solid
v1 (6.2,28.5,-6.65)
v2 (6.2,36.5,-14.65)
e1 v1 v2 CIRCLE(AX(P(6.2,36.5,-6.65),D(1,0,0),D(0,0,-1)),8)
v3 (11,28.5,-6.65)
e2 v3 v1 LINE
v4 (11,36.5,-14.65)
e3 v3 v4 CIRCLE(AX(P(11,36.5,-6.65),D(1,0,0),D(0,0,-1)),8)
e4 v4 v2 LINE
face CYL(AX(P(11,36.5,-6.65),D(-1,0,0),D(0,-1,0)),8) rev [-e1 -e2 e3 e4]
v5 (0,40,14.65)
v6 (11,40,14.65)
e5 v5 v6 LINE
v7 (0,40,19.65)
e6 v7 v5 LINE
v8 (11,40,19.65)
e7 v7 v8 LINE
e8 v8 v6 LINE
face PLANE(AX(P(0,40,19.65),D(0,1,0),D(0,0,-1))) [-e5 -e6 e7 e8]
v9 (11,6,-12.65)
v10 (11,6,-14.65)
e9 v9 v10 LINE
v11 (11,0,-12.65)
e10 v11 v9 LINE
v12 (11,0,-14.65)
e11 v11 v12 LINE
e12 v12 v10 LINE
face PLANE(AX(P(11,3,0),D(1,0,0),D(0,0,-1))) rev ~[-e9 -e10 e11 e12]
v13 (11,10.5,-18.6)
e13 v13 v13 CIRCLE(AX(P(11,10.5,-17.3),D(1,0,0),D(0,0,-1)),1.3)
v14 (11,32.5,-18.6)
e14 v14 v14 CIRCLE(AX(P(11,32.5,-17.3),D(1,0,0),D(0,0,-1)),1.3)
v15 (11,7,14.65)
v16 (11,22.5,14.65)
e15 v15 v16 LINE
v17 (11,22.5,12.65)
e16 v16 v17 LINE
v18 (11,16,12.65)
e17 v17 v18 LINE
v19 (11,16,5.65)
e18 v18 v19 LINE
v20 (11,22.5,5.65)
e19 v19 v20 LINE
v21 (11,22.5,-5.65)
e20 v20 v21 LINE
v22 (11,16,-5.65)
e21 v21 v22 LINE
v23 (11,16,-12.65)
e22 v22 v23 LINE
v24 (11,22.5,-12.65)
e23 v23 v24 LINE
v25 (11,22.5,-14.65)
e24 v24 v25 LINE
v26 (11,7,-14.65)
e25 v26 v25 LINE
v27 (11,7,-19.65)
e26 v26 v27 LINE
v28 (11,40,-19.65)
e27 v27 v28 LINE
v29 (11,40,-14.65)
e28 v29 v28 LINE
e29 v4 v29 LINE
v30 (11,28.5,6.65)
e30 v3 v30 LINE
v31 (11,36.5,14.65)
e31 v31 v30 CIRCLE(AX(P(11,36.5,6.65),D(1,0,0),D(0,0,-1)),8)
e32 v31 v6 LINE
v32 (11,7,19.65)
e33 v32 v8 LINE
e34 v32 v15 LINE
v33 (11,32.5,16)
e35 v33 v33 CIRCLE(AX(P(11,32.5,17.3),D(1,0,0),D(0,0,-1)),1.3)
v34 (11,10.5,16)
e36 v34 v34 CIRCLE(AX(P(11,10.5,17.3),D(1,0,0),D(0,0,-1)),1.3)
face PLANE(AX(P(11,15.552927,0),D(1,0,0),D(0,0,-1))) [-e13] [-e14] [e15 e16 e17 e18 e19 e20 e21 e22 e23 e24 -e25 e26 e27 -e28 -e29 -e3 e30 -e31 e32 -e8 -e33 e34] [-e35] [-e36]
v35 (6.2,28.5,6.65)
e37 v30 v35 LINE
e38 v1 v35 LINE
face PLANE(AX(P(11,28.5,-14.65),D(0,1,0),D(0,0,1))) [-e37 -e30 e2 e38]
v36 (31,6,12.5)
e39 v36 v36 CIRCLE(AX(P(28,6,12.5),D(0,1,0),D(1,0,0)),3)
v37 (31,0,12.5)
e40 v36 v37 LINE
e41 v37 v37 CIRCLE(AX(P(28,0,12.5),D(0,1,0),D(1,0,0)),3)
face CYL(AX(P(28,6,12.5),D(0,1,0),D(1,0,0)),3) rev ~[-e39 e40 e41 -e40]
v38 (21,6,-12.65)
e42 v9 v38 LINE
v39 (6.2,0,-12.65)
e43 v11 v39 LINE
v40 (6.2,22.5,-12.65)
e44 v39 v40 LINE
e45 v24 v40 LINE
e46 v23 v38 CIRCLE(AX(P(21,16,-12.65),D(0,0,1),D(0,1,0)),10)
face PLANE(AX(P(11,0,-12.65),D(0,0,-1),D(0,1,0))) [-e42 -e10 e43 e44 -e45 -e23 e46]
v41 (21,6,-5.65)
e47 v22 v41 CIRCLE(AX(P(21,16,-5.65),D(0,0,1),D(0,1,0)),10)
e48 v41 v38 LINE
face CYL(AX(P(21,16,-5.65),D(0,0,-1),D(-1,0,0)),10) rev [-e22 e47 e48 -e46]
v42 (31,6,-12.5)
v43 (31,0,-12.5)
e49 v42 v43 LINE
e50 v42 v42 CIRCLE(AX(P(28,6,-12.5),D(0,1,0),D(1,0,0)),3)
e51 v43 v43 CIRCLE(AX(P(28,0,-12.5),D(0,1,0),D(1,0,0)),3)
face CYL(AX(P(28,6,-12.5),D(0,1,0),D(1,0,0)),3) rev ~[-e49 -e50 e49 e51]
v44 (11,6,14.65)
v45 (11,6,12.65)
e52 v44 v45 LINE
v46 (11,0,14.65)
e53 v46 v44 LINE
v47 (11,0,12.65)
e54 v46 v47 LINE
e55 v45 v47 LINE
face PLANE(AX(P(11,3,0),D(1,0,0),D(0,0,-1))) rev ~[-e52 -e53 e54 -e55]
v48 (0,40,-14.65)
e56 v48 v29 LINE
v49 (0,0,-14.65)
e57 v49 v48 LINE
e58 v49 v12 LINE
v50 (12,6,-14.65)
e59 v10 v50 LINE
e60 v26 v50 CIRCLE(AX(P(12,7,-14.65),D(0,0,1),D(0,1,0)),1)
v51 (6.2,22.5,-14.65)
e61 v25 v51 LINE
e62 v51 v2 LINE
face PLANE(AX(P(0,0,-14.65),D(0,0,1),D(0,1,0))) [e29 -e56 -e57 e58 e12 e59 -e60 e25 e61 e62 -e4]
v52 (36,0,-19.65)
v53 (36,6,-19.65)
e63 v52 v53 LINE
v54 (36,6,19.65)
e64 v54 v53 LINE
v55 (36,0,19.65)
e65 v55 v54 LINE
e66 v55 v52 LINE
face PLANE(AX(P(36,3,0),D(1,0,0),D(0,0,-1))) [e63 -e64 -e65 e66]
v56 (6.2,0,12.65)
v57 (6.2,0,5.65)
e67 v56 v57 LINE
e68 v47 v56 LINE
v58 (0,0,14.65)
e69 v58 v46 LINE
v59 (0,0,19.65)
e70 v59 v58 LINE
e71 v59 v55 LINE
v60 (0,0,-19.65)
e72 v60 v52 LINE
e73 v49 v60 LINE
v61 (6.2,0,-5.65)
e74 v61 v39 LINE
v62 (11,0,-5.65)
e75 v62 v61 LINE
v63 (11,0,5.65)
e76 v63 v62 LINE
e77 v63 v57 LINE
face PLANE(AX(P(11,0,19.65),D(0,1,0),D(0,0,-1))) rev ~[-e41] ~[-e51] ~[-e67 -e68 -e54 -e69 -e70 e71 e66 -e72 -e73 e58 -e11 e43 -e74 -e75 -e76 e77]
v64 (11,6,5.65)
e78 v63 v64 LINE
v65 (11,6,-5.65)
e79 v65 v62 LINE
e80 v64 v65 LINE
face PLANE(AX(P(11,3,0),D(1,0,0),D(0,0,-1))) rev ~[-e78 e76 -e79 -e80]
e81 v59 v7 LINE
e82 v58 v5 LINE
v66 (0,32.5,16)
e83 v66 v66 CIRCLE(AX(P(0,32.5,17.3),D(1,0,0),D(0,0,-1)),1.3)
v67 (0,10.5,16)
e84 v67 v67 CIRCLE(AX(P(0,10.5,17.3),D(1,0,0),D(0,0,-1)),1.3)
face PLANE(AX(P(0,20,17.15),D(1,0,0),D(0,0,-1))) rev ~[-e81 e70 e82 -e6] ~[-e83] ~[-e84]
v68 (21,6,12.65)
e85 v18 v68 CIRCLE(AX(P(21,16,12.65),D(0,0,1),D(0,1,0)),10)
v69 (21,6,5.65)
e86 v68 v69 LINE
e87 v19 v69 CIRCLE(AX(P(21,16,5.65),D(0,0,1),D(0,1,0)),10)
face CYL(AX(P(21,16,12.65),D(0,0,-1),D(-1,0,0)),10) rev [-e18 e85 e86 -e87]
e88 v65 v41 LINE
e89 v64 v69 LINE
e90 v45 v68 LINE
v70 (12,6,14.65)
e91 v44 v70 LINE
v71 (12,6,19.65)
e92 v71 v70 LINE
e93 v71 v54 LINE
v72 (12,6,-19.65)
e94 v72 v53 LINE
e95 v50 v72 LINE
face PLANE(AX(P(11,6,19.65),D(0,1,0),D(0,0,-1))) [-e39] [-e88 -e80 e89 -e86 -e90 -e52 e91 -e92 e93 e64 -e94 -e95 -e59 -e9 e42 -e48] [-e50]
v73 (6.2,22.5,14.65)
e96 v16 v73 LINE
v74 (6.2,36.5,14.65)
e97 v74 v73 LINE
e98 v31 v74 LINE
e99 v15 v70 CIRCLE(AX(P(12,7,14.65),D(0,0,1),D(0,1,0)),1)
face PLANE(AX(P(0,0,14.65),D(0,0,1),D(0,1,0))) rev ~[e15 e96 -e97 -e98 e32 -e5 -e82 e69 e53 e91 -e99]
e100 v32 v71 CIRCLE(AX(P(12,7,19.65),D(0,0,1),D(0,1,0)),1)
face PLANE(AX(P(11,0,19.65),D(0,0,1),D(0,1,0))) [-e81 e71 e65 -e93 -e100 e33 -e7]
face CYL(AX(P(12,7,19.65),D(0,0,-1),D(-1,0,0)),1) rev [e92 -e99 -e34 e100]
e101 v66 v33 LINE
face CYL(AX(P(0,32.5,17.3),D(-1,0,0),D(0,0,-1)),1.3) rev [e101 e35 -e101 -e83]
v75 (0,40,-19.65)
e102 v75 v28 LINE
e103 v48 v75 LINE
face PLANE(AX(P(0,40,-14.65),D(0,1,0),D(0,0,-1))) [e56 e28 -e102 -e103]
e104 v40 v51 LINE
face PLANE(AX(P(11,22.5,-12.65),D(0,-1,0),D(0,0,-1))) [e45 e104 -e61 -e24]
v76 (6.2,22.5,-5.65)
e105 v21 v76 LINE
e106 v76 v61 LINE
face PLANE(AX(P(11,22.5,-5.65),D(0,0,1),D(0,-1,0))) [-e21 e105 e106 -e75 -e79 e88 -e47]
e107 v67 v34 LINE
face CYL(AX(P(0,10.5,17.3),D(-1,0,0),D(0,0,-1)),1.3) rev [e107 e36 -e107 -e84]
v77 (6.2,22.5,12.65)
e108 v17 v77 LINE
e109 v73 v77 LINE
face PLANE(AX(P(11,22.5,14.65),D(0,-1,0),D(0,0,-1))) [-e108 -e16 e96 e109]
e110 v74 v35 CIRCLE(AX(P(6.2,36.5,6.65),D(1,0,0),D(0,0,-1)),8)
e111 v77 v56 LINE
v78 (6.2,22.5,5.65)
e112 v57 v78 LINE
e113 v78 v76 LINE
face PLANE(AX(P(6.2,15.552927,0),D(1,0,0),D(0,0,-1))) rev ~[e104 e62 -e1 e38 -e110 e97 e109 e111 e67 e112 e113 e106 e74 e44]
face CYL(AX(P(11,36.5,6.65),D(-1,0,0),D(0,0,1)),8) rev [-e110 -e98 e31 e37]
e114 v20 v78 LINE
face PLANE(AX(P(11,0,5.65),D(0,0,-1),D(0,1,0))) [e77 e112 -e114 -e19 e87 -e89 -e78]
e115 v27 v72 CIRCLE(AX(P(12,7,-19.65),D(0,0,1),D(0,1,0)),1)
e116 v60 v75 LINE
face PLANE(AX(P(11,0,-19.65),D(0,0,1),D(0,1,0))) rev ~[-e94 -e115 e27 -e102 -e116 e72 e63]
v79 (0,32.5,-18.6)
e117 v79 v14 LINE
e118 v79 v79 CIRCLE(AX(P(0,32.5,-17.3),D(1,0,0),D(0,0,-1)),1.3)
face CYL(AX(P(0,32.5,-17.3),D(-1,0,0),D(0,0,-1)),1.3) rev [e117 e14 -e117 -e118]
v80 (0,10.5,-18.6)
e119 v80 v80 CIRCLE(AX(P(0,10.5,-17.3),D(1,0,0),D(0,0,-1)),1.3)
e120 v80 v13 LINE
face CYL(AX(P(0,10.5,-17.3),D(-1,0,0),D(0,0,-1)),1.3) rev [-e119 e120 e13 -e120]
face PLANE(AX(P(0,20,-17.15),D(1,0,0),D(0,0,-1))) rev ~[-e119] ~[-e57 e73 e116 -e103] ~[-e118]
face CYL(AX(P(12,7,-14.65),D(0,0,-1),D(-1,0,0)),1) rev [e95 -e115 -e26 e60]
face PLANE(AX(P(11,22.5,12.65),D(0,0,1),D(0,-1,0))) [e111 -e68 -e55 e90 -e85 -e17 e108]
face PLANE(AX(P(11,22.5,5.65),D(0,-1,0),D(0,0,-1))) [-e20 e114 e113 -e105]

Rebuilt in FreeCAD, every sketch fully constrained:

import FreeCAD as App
import Part
import Sketcher
Q = App.Units.Quantity


def edges_at(feature, points):
    """Names of the edges that pass closest to the given points."""
    edges = feature.Shape.Edges
    near = lambda p: min(range(len(edges)), key=lambda i: edges[i].distToShape(Part.Vertex(*p))[0])
    return sorted({f"Edge{near(p) + 1}" for p in points})

doc = App.newDocument("Part")
body = doc.addObject("PartDesign::Body", "Body")

# Sketch on YZ plane
sketch1 = body.newObject("Sketcher::SketchObject", "Sketch")
sketch1.AttachmentSupport = (doc.getObject("YZ_Plane"), [""])
sketch1.MapMode = "FlatFace"
sketch1.addGeometry([
    Part.LineSegment(App.Vector(40, 19.6, 0), App.Vector(0, 19.6, 0)),  # 0
    Part.LineSegment(App.Vector(0, 19.6, 0), App.Vector(0, 14.7, 0)),  # 1
    Part.LineSegment(App.Vector(0, 14.7, 0), App.Vector(40, 14.7, 0)),  # 2
    Part.LineSegment(App.Vector(40, 14.7, 0), App.Vector(40, 19.6, 0)),  # 3
    Part.Circle(App.Vector(10.5, 17.3, 0), App.Vector(0, 0, 1), 1.3),  # 4
    Part.Circle(App.Vector(32.5, 17.3, 0), App.Vector(0, 0, 1), 1.3),  # 5
], False)
sketch1.addConstraint([
    Sketcher.Constraint("Coincident", 0, 2, 1, 1),
    Sketcher.Constraint("Coincident", 1, 2, 2, 1),
    Sketcher.Constraint("Coincident", 2, 2, 3, 1),
    Sketcher.Constraint("Coincident", 3, 2, 0, 1),
    Sketcher.Constraint("Horizontal", 0),
    Sketcher.Constraint("Vertical", 1),
    Sketcher.Constraint("Horizontal", 2),
    Sketcher.Constraint("Vertical", 3),
    Sketcher.Constraint("Equal", 4, 5),
    Sketcher.Constraint("PointOnObject", 0, 2, -2),
    Sketcher.Constraint("Horizontal", 4, 3, 5, 3),
    Sketcher.Constraint("Diameter", 4, Q("2.6 mm")),
    Sketcher.Constraint("DistanceX", 0, 2, 0, 1, Q("40 mm")),
    Sketcher.Constraint("DistanceY", 1, 2, 1, 1, Q("5 mm")),
    Sketcher.Constraint("DistanceX", 4, 3, 5, 3, Q("22 mm")),
    Sketcher.Constraint("DistanceX", -1, 1, 4, 3, Q("10.5 mm")),
    Sketcher.Constraint("DistanceY", -1, 1, 4, 3, Q("17.3 mm")),
    Sketcher.Constraint("DistanceY", -1, 1, 0, 2, Q("19.65 mm")),
])
pad1 = body.newObject("PartDesign::Pad", "Pad")
pad1.Profile = sketch1
pad1.Length = 11
body2 = doc.addObject("PartDesign::Body", "Body001")

# Sketch on YZ plane
sketch2 = body2.newObject("Sketcher::SketchObject", "Sketch001")
sketch2.AttachmentSupport = (doc.getObject("YZ_Plane001"), [""])
sketch2.MapMode = "FlatFace"
sketch2.addGeometry([
    Part.LineSegment(App.Vector(40, -14.7, 0), App.Vector(0, -14.7, 0)),  # 0
    Part.LineSegment(App.Vector(0, -14.7, 0), App.Vector(0, -19.6, 0)),  # 1
    Part.LineSegment(App.Vector(0, -19.6, 0), App.Vector(40, -19.6, 0)),  # 2
    Part.LineSegment(App.Vector(40, -19.6, 0), App.Vector(40, -14.7, 0)),  # 3
    Part.Circle(App.Vector(10.5, -17.3, 0), App.Vector(0, 0, 1), 1.3),  # 4
    Part.Circle(App.Vector(32.5, -17.3, 0), App.Vector(0, 0, 1), 1.3),  # 5
], False)
sketch2.addConstraint([
    Sketcher.Constraint("Coincident", 0, 2, 1, 1),
    Sketcher.Constraint("Coincident", 1, 2, 2, 1),
    Sketcher.Constraint("Coincident", 2, 2, 3, 1),
    Sketcher.Constraint("Coincident", 3, 2, 0, 1),
    Sketcher.Constraint("Horizontal", 0),
    Sketcher.Constraint("Vertical", 1),
    Sketcher.Constraint("Horizontal", 2),
    Sketcher.Constraint("Vertical", 3),
    Sketcher.Constraint("Equal", 4, 5),
    Sketcher.Constraint("PointOnObject", 0, 2, -2),
    Sketcher.Constraint("Horizontal", 4, 3, 5, 3),
    Sketcher.Constraint("Diameter", 4, Q("2.6 mm")),
    Sketcher.Constraint("DistanceX", 0, 2, 0, 1, Q("40 mm")),
    Sketcher.Constraint("DistanceY", 1, 2, 1, 1, Q("5 mm")),
    Sketcher.Constraint("DistanceX", 4, 3, 5, 3, Q("22 mm")),
    Sketcher.Constraint("DistanceX", -1, 1, 4, 3, Q("10.5 mm")),
    Sketcher.Constraint("DistanceY", 4, 3, -1, 1, Q("17.3 mm")),
    Sketcher.Constraint("DistanceY", 0, 2, -1, 1, Q("14.65 mm")),
])
pad2 = body2.newObject("PartDesign::Pad", "Pad001")
pad2.Profile = sketch2
pad2.Length = 11
body.AllowCompound = True
doc.recompute()

boolean = body.newObject("PartDesign::Boolean", "Boolean")
boolean.Type = "Fuse"
boolean.addObjects([body2])

# Sketch on YZ plane
sketch3 = body.newObject("Sketcher::SketchObject", "Sketch002")
sketch3.AttachmentSupport = (doc.getObject("YZ_Plane"), [""])
sketch3.MapMode = "FlatFace"
sketch3.AttachmentOffset = App.Placement(App.Vector(0, 0, 11), App.Rotation())
sketch3.addGeometry([
    Part.LineSegment(App.Vector(6, 20, 0), App.Vector(0, 20, 0)),
    Part.LineSegment(App.Vector(0, 20, 0), App.Vector(0, -20, 0)),
    Part.LineSegment(App.Vector(0, -20, 0), App.Vector(6, -20, 0)),
    Part.LineSegment(App.Vector(6, -20, 0), App.Vector(6, 20, 0)),
], False)
sketch3.addConstraint([
    Sketcher.Constraint("Coincident", 0, 2, 1, 1),
    Sketcher.Constraint("Coincident", 1, 2, 2, 1),
    Sketcher.Constraint("Coincident", 2, 2, 3, 1),
    Sketcher.Constraint("Coincident", 3, 2, 0, 1),
    Sketcher.Constraint("Horizontal", 0),
    Sketcher.Constraint("Vertical", 1),
    Sketcher.Constraint("Horizontal", 2),
    Sketcher.Constraint("Vertical", 3),
    Sketcher.Constraint("Symmetric", 0, 2, 1, 2, -1, 1),
    Sketcher.Constraint("DistanceX", 0, 2, 0, 1, Q("6 mm")),
    Sketcher.Constraint("DistanceY", 1, 2, 1, 1, Q("39.3 mm")),
])
pad3 = body.newObject("PartDesign::Pad", "Pad002")
pad3.Profile = sketch3
pad3.Length = 25

# Sketch on YZ plane
sketch4 = body.newObject("Sketcher::SketchObject", "Sketch003")
sketch4.AttachmentSupport = (doc.getObject("YZ_Plane"), [""])
sketch4.MapMode = "FlatFace"
sketch4.AttachmentOffset = App.Placement(App.Vector(0, 0, 11), App.Rotation())
sketch4.addGeometry([
    Part.LineSegment(App.Vector(22.5, 14.7, 0), App.Vector(22.5, 12.7, 0)),  # 0
    Part.LineSegment(App.Vector(22.5, 12.7, 0), App.Vector(0, 12.7, 0)),  # 1
    Part.LineSegment(App.Vector(0, 12.7, 0), App.Vector(0, 5.7, 0)),  # 2
    Part.LineSegment(App.Vector(0, 5.7, 0), App.Vector(22.5, 5.7, 0)),  # 3
    Part.LineSegment(App.Vector(22.5, 5.7, 0), App.Vector(22.5, -5.7, 0)),  # 4
    Part.LineSegment(App.Vector(22.5, -5.7, 0), App.Vector(0, -5.7, 0)),  # 5
    Part.LineSegment(App.Vector(0, -5.7, 0), App.Vector(0, -12.7, 0)),  # 6
    Part.LineSegment(App.Vector(0, -12.7, 0), App.Vector(22.5, -12.7, 0)),  # 7
    Part.LineSegment(App.Vector(22.5, -12.7, 0), App.Vector(22.5, -14.7, 0)),  # 8
    Part.LineSegment(App.Vector(22.5, -14.7, 0), App.Vector(28.5, -14.7, 0)),  # 9
    Part.LineSegment(App.Vector(28.5, -14.7, 0), App.Vector(28.5, 14.7, 0)),  # 10
    Part.LineSegment(App.Vector(28.5, 14.7, 0), App.Vector(22.5, 14.7, 0)),  # 11
], False)
sketch4.addConstraint([
    Sketcher.Constraint("Coincident", 0, 2, 1, 1),
    Sketcher.Constraint("Coincident", 1, 2, 2, 1),
    Sketcher.Constraint("Coincident", 2, 2, 3, 1),
    Sketcher.Constraint("Coincident", 3, 2, 4, 1),
    Sketcher.Constraint("Coincident", 4, 2, 5, 1),
    Sketcher.Constraint("Coincident", 5, 2, 6, 1),
    Sketcher.Constraint("Coincident", 6, 2, 7, 1),
    Sketcher.Constraint("Coincident", 7, 2, 8, 1),
    Sketcher.Constraint("Coincident", 8, 2, 9, 1),
    Sketcher.Constraint("Coincident", 9, 2, 10, 1),
    Sketcher.Constraint("Coincident", 10, 2, 11, 1),
    Sketcher.Constraint("Coincident", 11, 2, 0, 1),
    Sketcher.Constraint("Vertical", 0),
    Sketcher.Constraint("Horizontal", 1),
    Sketcher.Constraint("Vertical", 2),
    Sketcher.Constraint("Horizontal", 3),
    Sketcher.Constraint("Vertical", 4),
    Sketcher.Constraint("Horizontal", 5),
    Sketcher.Constraint("Vertical", 6),
    Sketcher.Constraint("Horizontal", 7),
    Sketcher.Constraint("Vertical", 8),
    Sketcher.Constraint("Horizontal", 9),
    Sketcher.Constraint("Vertical", 10),
    Sketcher.Constraint("Horizontal", 11),
    Sketcher.Constraint("Symmetric", 2, 2, 5, 2, -1, 1),
    Sketcher.Constraint("Symmetric", 1, 2, 6, 2, -1),
    Sketcher.Constraint("Symmetric", 8, 2, 11, 2, -1),
    Sketcher.Constraint("Vertical", 0, 2, 3, 2),
    Sketcher.Constraint("DistanceX", 9, 1, 9, 2, Q("6 mm")),
    Sketcher.Constraint("DistanceY", 0, 2, 0, 1, Q("2 mm")),
    Sketcher.Constraint("DistanceY", 2, 2, 2, 1, Q("7 mm")),
    Sketcher.Constraint("DistanceX", 1, 2, 1, 1, Q("22.5 mm")),
    Sketcher.Constraint("DistanceY", 4, 2, 4, 1, Q("11.3 mm")),
])
pad4 = body.newObject("PartDesign::Pad", "Pad003")
pad4.Profile = sketch4
pad4.Length = 4.8
pad4.Reversed = True
doc.recompute()

fillet = body.newObject("PartDesign::Fillet", "Fillet")
fillet.Base = (pad4, edges_at(pad4, [(11, 6, 17.15), (11, 6, -17.15)]))
fillet.Radius = 1

# Sketch on XZ plane
sketch5 = body.newObject("Sketcher::SketchObject", "Sketch004")
sketch5.AttachmentSupport = (doc.getObject("XZ_Plane"), [""])
sketch5.MapMode = "FlatFace"
sketch5.AttachmentOffset = App.Placement(App.Vector(0, 0, -6), App.Rotation())
sketch5.addGeometry([
    Part.Circle(App.Vector(28, -12.5, 0), App.Vector(0, 0, 1), 3),
    Part.Circle(App.Vector(28, 12.5, 0), App.Vector(0, 0, 1), 3),
], False)
sketch5.addConstraint([
    Sketcher.Constraint("Equal", 0, 1),
    Sketcher.Constraint("Symmetric", 0, 3, 1, 3, -1),
    Sketcher.Constraint("Diameter", 0, Q("6 mm")),
    Sketcher.Constraint("DistanceX", -1, 1, 0, 3, Q("28 mm")),
    Sketcher.Constraint("DistanceY", 0, 3, 1, 3, Q("25 mm")),
])
pocket1 = body.newObject("PartDesign::Pocket", "Pocket")
pocket1.Profile = sketch5
pocket1.Length = 34
pocket1.Reversed = True
doc.recompute()

fillet2 = body.newObject("PartDesign::Fillet", "Fillet001")
fillet2.Base = (pocket1, edges_at(pocket1, [(11, 6, 9.15), (11, 6, -9.15)]))
fillet2.Radius = 10
doc.recompute()

fillet3 = body.newObject("PartDesign::Fillet", "Fillet002")
fillet3.Base = (fillet2, edges_at(fillet2, [(8.6, 28.5, 14.65), (8.6, 28.5, -14.65)]))
fillet3.Radius = 8

doc.recompute()
